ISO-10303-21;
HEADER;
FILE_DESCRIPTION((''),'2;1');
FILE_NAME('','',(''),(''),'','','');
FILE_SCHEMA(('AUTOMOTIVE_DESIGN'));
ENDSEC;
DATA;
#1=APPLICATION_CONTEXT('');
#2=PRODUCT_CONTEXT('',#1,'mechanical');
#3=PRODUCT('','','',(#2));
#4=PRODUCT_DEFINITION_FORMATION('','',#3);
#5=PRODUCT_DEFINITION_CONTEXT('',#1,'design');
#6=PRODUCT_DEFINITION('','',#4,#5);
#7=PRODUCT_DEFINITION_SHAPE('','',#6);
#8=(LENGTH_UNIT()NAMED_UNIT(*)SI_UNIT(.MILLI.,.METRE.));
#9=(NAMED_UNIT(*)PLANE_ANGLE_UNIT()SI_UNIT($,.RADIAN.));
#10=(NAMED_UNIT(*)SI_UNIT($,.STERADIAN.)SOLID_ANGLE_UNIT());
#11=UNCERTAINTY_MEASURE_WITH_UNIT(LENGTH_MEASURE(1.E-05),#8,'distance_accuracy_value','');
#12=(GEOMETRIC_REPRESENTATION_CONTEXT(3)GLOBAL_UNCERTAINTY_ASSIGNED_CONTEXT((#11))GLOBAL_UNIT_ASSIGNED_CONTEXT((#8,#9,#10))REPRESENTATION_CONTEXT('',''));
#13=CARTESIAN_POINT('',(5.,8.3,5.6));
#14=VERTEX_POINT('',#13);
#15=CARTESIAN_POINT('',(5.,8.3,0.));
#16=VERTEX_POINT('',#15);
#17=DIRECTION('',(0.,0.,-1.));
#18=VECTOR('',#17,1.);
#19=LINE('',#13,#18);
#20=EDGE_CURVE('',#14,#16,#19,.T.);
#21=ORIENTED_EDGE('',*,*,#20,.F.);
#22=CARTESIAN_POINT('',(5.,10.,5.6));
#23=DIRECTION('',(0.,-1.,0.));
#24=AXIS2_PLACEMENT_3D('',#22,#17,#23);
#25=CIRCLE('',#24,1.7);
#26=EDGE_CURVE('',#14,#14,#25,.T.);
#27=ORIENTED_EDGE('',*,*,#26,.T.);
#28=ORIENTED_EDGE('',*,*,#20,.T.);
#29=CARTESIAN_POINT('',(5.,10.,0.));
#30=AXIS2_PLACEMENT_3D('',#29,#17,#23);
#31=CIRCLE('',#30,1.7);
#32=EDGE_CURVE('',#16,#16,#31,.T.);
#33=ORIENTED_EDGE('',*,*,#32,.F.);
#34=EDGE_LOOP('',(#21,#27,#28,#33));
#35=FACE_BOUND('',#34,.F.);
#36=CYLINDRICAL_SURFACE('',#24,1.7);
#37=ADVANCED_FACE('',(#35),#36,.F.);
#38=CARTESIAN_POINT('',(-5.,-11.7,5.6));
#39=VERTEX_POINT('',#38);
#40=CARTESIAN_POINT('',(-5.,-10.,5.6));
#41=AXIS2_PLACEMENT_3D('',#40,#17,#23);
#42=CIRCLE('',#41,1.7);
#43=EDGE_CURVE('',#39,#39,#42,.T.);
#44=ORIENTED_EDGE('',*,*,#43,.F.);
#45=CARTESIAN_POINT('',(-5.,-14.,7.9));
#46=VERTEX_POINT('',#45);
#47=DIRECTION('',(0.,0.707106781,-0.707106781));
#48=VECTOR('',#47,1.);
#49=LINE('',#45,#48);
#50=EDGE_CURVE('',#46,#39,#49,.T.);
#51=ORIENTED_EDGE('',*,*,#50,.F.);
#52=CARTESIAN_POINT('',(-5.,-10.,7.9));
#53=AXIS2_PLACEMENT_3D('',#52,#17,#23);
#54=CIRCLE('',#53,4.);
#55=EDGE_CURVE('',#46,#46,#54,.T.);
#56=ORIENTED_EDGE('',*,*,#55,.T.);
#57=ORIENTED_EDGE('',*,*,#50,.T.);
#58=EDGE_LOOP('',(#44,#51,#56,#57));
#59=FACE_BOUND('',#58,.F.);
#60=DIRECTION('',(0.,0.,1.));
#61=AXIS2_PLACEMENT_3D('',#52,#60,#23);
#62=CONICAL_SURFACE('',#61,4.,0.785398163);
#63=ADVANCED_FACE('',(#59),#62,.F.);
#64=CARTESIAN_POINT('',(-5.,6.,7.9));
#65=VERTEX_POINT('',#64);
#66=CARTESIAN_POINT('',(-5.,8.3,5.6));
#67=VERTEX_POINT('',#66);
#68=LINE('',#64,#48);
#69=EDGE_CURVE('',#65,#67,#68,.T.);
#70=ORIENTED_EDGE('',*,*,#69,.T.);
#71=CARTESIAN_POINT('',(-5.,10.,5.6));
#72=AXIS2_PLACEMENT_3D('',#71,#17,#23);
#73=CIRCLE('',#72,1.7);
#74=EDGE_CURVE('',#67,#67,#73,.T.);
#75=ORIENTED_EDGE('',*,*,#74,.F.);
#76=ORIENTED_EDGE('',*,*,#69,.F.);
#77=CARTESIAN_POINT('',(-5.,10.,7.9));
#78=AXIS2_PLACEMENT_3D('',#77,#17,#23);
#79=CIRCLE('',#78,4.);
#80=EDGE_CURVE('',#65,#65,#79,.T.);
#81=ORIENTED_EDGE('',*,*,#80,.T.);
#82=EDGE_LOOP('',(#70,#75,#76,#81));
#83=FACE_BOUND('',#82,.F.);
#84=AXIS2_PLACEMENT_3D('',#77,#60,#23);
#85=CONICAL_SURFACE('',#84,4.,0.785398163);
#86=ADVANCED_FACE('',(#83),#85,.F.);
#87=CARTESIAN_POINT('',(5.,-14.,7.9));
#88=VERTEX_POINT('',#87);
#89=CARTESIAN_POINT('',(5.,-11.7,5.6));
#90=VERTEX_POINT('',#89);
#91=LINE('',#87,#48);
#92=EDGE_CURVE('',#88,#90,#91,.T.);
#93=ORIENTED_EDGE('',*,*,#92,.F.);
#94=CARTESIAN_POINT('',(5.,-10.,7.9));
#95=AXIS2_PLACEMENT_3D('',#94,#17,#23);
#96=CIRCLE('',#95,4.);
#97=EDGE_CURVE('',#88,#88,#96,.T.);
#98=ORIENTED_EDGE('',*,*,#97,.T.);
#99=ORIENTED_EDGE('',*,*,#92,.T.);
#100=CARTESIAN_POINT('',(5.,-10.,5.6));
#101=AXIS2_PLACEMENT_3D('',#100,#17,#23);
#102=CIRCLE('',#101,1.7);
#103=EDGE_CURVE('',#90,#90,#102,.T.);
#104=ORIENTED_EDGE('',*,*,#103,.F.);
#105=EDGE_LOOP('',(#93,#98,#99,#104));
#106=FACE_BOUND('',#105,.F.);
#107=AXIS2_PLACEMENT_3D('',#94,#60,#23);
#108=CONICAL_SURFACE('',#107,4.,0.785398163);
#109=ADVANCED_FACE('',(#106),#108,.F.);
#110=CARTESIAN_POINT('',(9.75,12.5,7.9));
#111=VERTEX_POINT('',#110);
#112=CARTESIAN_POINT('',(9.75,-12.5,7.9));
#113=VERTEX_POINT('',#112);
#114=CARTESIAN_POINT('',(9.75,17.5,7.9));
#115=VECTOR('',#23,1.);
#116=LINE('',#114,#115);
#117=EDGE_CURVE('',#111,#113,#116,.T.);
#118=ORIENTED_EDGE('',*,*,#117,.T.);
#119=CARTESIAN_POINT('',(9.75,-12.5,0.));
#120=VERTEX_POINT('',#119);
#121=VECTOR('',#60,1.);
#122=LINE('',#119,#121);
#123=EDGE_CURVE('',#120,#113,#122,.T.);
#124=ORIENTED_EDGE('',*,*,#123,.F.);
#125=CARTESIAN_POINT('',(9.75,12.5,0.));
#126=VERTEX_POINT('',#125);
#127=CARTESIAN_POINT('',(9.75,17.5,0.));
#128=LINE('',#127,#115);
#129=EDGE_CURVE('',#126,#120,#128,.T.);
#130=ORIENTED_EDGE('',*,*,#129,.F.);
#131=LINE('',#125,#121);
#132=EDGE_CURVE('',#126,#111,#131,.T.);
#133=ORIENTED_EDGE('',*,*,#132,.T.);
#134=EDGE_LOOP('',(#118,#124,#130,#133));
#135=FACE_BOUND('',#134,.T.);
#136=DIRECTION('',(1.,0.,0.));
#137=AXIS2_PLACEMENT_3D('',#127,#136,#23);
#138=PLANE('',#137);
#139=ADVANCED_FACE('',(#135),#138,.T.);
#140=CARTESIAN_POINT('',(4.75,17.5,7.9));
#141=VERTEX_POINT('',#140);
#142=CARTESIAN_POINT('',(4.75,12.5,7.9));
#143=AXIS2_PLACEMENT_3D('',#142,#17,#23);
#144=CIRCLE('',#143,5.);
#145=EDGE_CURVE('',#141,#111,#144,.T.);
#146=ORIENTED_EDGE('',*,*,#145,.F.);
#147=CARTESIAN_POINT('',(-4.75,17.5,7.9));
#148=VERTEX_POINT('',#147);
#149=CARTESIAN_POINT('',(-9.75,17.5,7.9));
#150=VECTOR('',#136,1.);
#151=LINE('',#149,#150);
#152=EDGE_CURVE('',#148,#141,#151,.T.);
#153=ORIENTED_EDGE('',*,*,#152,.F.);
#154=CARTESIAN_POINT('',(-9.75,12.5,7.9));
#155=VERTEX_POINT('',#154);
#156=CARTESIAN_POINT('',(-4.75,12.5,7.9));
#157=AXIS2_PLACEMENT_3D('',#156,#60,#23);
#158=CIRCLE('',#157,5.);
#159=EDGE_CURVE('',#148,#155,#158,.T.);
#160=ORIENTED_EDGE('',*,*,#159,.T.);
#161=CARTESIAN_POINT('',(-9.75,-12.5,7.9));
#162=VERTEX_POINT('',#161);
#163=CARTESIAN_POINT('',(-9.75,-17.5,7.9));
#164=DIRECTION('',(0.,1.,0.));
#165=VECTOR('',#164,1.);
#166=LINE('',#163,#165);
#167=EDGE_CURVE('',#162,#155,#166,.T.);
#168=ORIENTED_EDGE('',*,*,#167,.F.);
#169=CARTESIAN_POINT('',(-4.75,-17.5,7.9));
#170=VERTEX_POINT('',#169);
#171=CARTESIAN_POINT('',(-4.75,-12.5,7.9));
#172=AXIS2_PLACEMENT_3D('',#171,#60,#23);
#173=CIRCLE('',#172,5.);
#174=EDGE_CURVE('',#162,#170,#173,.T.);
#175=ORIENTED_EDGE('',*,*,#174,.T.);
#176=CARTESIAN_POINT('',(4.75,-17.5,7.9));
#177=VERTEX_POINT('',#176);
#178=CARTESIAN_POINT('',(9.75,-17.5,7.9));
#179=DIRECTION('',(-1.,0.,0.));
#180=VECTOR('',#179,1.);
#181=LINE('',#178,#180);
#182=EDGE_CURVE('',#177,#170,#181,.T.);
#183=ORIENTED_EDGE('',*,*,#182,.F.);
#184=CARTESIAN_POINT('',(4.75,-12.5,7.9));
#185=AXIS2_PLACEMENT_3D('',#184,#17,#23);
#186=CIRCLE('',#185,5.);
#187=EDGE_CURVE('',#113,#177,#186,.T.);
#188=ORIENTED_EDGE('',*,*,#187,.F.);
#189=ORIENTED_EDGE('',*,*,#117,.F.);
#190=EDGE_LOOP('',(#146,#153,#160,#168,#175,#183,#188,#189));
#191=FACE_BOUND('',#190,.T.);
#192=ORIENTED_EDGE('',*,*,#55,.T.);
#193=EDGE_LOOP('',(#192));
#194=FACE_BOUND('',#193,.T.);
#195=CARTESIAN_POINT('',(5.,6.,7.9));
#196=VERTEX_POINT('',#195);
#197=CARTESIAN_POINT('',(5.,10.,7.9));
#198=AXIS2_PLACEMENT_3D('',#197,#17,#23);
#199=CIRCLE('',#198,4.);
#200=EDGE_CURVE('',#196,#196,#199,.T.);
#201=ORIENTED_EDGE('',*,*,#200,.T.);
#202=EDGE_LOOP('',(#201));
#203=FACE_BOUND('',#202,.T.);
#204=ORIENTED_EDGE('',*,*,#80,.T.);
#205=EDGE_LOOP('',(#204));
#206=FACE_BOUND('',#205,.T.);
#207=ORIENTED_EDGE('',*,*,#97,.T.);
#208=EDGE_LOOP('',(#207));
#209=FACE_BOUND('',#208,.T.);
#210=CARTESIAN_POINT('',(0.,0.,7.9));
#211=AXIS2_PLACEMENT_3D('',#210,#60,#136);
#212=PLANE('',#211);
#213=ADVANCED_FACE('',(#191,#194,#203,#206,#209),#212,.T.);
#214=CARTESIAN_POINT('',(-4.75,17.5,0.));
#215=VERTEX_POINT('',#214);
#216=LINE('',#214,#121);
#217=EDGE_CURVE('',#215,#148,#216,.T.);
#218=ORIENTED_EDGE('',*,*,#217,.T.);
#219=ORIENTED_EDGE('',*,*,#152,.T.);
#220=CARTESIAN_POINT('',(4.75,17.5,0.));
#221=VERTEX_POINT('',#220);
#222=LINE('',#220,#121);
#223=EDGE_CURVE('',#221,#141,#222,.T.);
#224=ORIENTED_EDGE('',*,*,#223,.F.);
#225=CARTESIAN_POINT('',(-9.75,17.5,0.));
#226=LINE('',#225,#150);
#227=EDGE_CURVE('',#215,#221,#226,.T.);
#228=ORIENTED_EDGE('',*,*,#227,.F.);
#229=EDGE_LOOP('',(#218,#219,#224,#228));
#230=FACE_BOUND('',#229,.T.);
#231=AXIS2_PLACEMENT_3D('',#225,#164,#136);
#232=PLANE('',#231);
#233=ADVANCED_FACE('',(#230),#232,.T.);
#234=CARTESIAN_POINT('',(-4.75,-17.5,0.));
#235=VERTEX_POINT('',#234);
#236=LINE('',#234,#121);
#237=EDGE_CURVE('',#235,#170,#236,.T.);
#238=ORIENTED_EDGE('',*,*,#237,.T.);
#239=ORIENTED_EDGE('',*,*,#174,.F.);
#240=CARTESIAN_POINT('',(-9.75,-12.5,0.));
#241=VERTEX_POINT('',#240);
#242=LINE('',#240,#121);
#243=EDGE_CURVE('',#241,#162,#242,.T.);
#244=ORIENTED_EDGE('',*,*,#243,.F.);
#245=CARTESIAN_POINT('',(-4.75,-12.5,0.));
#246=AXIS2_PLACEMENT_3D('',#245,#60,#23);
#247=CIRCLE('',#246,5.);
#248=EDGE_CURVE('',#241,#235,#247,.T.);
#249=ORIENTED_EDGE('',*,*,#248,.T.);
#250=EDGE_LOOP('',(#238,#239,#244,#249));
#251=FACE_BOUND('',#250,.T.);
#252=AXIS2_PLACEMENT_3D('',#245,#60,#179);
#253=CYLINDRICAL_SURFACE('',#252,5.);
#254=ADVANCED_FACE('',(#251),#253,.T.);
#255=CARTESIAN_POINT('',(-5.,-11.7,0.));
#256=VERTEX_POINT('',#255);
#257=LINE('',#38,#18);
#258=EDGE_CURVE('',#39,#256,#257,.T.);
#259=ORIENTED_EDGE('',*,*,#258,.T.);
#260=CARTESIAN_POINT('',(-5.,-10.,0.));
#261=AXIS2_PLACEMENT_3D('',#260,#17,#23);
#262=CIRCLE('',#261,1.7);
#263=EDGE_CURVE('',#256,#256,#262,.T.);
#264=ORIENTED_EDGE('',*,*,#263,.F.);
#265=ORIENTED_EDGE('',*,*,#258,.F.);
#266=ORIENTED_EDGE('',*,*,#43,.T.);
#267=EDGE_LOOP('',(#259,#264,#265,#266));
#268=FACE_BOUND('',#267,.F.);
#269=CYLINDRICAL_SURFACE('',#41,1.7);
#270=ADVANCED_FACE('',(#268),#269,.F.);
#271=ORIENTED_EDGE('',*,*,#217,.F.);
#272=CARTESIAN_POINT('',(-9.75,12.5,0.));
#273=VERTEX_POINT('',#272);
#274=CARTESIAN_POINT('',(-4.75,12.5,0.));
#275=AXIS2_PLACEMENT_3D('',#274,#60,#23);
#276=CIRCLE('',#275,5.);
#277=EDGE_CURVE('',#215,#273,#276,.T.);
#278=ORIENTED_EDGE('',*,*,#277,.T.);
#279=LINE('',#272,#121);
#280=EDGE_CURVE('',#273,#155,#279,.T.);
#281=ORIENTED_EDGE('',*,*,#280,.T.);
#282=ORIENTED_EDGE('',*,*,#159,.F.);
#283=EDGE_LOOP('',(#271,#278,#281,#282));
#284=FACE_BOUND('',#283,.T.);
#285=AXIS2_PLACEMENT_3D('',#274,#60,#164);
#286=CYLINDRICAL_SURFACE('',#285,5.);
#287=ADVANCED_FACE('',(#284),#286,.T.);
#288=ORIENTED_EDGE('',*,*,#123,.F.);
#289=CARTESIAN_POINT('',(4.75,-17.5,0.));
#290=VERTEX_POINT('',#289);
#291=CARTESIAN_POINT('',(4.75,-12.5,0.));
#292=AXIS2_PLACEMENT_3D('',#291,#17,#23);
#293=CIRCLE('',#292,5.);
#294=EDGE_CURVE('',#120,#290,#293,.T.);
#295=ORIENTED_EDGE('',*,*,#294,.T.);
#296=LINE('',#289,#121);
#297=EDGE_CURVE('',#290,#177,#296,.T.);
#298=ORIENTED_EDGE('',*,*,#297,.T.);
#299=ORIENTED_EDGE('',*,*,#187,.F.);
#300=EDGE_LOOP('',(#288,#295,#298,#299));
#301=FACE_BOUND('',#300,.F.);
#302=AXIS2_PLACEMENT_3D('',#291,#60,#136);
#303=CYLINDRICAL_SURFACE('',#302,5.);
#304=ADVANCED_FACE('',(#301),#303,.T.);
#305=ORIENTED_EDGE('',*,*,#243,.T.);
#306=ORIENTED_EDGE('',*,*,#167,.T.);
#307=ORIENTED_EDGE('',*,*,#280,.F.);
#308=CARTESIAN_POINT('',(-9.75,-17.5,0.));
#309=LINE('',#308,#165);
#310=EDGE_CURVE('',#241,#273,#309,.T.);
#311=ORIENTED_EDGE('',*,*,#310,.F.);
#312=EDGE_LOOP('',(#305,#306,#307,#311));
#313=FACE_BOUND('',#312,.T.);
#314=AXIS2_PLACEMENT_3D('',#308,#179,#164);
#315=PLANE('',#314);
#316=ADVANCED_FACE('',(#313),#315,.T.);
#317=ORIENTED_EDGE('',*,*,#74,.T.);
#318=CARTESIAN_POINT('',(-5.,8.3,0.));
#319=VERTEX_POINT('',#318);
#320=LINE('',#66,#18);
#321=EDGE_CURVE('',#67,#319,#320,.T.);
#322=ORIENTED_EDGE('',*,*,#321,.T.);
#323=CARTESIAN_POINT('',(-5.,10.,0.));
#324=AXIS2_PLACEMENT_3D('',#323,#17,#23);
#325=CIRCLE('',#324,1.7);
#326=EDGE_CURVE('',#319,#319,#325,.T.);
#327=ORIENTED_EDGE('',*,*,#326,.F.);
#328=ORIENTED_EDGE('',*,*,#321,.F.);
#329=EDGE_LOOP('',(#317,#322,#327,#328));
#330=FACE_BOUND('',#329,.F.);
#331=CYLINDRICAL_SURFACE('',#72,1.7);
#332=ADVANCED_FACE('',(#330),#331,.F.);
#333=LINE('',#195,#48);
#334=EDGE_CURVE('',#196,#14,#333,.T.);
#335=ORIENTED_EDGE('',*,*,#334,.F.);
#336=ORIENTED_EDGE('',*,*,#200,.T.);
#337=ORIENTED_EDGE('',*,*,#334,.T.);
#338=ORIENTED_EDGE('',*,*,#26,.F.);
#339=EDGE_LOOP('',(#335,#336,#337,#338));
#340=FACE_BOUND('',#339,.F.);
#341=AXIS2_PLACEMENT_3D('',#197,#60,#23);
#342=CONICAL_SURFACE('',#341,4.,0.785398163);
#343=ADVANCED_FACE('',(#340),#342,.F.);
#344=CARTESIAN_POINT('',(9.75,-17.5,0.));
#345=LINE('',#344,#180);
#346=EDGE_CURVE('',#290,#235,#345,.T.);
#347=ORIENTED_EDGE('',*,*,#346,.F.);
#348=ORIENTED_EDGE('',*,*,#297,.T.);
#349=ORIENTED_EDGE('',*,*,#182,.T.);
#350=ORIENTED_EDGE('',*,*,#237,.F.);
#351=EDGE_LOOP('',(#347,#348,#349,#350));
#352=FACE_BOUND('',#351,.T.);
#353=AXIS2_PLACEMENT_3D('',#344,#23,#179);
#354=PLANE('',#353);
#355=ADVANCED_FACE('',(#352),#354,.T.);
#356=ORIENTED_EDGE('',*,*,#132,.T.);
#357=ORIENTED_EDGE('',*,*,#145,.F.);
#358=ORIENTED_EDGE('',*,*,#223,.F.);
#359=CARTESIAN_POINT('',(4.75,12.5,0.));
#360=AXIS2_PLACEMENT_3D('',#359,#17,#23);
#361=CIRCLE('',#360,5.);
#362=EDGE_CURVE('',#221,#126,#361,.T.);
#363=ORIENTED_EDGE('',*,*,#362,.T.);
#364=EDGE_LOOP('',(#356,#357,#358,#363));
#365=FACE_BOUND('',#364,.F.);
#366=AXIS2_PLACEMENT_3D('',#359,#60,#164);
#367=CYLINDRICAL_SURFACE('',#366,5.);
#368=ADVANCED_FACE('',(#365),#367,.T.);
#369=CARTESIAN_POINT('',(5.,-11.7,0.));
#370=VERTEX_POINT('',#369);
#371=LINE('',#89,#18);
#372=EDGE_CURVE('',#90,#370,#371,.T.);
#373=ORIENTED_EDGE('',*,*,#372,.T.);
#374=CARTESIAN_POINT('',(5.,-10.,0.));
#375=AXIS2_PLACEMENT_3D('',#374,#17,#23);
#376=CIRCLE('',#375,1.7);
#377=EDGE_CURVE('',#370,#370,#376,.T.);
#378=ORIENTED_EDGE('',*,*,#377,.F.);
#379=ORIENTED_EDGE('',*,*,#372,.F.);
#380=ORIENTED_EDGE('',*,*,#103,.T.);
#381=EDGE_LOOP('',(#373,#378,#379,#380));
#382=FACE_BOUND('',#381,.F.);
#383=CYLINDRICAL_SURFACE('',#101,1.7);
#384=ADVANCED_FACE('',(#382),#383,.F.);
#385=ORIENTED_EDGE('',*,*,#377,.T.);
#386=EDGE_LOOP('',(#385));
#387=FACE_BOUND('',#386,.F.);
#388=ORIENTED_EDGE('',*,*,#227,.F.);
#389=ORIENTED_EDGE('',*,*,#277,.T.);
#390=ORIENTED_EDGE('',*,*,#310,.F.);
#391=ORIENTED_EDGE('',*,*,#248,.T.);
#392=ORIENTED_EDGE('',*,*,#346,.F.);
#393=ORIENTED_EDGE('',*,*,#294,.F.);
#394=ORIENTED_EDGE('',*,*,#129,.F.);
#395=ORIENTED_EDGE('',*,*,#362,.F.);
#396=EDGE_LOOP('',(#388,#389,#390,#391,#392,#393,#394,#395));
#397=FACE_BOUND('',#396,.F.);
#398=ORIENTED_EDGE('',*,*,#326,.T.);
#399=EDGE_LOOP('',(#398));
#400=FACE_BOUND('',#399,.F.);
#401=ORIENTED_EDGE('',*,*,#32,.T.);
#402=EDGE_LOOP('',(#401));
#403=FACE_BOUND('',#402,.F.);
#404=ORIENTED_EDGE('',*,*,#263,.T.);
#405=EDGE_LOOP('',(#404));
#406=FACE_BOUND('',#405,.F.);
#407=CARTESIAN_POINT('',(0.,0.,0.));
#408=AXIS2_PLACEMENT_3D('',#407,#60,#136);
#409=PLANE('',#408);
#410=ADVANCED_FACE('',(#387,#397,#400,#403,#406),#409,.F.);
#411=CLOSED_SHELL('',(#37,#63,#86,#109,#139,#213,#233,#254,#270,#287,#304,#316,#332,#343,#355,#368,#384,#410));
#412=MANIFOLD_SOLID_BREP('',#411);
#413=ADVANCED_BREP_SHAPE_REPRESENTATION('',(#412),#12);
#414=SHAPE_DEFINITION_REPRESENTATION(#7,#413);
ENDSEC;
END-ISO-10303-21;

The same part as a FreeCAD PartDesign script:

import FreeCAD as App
import Part
import Sketcher
Q = App.Units.Quantity


def edges_at(feature, points):
    """Names of the edges that pass closest to the given points."""
    edges = feature.Shape.Edges
    near = lambda p: min(range(len(edges)), key=lambda i: edges[i].distToShape(Part.Vertex(*p))[0])
    return sorted({f"Edge{near(p) + 1}" for p in points})

doc = App.newDocument("Part")
body = doc.addObject("PartDesign::Body", "Body")

# Sketch on XY plane
sketch1 = body.newObject("Sketcher::SketchObject", "Sketch")
sketch1.AttachmentSupport = (doc.getObject("XY_Plane"), [""])
sketch1.MapMode = "FlatFace"
sketch1.addGeometry([
    Part.LineSegment(App.Vector(10, 18, 0), App.Vector(-10, 18, 0)),
    Part.LineSegment(App.Vector(-10, 18, 0), App.Vector(-10, -18, 0)),
    Part.LineSegment(App.Vector(-10, -18, 0), App.Vector(10, -18, 0)),
    Part.LineSegment(App.Vector(10, -18, 0), App.Vector(10, 18, 0)),
], False)
sketch1.addConstraint([
    Sketcher.Constraint("Coincident", 0, 2, 1, 1),
    Sketcher.Constraint("Coincident", 1, 2, 2, 1),
    Sketcher.Constraint("Coincident", 2, 2, 3, 1),
    Sketcher.Constraint("Coincident", 3, 2, 0, 1),
    Sketcher.Constraint("Horizontal", 0),
    Sketcher.Constraint("Vertical", 1),
    Sketcher.Constraint("Horizontal", 2),
    Sketcher.Constraint("Vertical", 3),
    Sketcher.Constraint("Symmetric", 0, 2, 2, 2, -1, 1),
    Sketcher.Constraint("DistanceY", 1, 2, 1, 1, Q("35 mm")),
    Sketcher.Constraint("DistanceX", 0, 2, 0, 1, Q("19.5 mm")),
])
pad1 = body.newObject("PartDesign::Pad", "Pad")
pad1.Profile = sketch1
pad1.Length = 7.9

# Sketch on XY plane
sketch2 = body.newObject("Sketcher::SketchObject", "Sketch001")
sketch2.AttachmentSupport = (doc.getObject("XY_Plane"), [""])
sketch2.MapMode = "FlatFace"
sketch2.AttachmentOffset = App.Placement(App.Vector(0, 0, 7.9), App.Rotation())
sketch2.addGeometry([
    Part.Circle(App.Vector(-5, 10, 0), App.Vector(0, 0, 1), 1.7),
    Part.Circle(App.Vector(5, 10, 0), App.Vector(0, 0, 1), 1.7),
    Part.Circle(App.Vector(5, -10, 0), App.Vector(0, 0, 1), 1.7),
    Part.Circle(App.Vector(-5, -10, 0), App.Vector(0, 0, 1), 1.7),
], False)
sketch2.addConstraint([
    Sketcher.Constraint("Equal", 0, 1),
    Sketcher.Constraint("Equal", 1, 2),
    Sketcher.Constraint("Equal", 2, 3),
    Sketcher.Constraint("Symmetric", 0, 3, 2, 3, -1, 1),
    Sketcher.Constraint("Symmetric", 1, 3, 3, 3, -1, 1),
    Sketcher.Constraint("Symmetric", 0, 3, 1, 3, -2),
    Sketcher.Constraint("Diameter", 0, Q("3.4 mm")),
    Sketcher.Constraint("DistanceX", 0, 3, -1, 1, Q("5 mm")),
    Sketcher.Constraint("DistanceY", -1, 1, 0, 3, Q("10 mm")),
])
doc.recompute()
hole = body.newObject("PartDesign::Hole", "Hole")
hole.Profile = sketch2
hole.ThreadType = "None"
hole.Diameter = 3.4
hole.DepthType = "ThroughAll"
hole.HoleCutType = "Countersink"
hole.HoleCutDiameter = 8
hole.HoleCutCountersinkAngle = 90
doc.recompute()

fillet = body.newObject("PartDesign::Fillet", "Fillet")
fillet.Base = (hole, edges_at(hole, [
    (9.75, -17.5, 3.95),
    (-9.75, -17.5, 3.95),
    (-9.75, 17.5, 3.95),
    (9.75, 17.5, 3.95),
]))
fillet.Radius = 5

doc.recompute()
